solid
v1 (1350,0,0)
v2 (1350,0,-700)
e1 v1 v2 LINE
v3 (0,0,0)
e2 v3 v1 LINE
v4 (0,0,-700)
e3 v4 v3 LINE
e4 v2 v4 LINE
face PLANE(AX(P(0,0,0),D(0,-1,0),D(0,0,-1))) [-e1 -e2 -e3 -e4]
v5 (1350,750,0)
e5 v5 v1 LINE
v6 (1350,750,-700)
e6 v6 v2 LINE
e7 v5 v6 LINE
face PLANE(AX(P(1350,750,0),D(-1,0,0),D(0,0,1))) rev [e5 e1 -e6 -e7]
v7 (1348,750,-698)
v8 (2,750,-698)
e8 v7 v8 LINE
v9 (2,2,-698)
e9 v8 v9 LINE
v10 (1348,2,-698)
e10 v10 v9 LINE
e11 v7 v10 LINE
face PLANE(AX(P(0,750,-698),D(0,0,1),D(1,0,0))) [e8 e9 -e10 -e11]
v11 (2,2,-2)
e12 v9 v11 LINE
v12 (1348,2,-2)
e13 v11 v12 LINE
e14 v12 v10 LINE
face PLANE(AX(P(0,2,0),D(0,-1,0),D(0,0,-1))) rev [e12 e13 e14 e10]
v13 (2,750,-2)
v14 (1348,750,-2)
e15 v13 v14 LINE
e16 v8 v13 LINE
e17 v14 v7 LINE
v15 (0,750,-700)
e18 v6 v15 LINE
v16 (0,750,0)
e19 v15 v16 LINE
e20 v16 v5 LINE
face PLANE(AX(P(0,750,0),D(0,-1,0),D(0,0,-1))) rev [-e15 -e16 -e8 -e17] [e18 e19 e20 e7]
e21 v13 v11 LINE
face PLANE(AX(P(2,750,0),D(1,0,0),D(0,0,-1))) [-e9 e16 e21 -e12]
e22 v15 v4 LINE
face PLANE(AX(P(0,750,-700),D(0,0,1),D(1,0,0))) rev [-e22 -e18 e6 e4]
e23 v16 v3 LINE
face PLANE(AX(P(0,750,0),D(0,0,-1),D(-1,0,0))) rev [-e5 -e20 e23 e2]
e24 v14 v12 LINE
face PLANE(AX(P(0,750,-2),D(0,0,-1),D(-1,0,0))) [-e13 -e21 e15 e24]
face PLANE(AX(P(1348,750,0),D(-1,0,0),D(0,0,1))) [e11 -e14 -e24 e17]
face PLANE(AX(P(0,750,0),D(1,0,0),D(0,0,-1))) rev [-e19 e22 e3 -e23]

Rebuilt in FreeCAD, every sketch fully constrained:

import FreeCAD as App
import Part
import Sketcher

V = App.Vector
Q = App.Units.Quantity


def faces_at(feature, points):
    """Names of the faces that lie closest to the given points."""
    faces = feature.Shape.Faces
    near = lambda p: min(range(len(faces)), key=lambda i: faces[i].distToShape(Part.Vertex(*p))[0])
    return sorted({f"Face{near(p) + 1}" for p in points})

doc = App.newDocument("Part")
body = doc.addObject("PartDesign::Body", "Body")

# Sketch on XZ plane
sketch1 = body.newObject("Sketcher::SketchObject", "Sketch")
sketch1.AttachmentSupport = (doc.getObject("XZ_Plane"), [""])
sketch1.MapMode = "FlatFace"
sketch1.addGeometry([
    Part.LineSegment(V(0, -700, 0), V(0, 0, 0)),
    Part.LineSegment(V(0, 0, 0), V(1350, 0, 0)),
    Part.LineSegment(V(1350, 0, 0), V(1350, -700, 0)),
    Part.LineSegment(V(1350, -700, 0), V(0, -700, 0)),
], False)
sketch1.addConstraint([
    Sketcher.Constraint("Coincident", 0, 2, 1, 1),
    Sketcher.Constraint("Coincident", 1, 2, 2, 1),
    Sketcher.Constraint("Coincident", 2, 2, 3, 1),
    Sketcher.Constraint("Coincident", 3, 2, 0, 1),
    Sketcher.Constraint("Vertical", 0),
    Sketcher.Constraint("Horizontal", 1),
    Sketcher.Constraint("Vertical", 2),
    Sketcher.Constraint("Horizontal", 3),
    Sketcher.Constraint("Coincident", 0, 2, -1, 1),
    Sketcher.Constraint("DistanceX", 1, 1, 1, 2, Q("1350 mm")),
    Sketcher.Constraint("DistanceY", 0, 1, 0, 2, Q("700 mm")),
])
pad1 = body.newObject("PartDesign::Pad", "Pad")
pad1.Profile = sketch1
pad1.Length = 750
pad1.Reversed = True
doc.recompute()

thickness = body.newObject("PartDesign::Thickness", "Thickness")
thickness.Base = (pad1, faces_at(pad1, [(675, 750, -350)]))
thickness.Value = 2
thickness.Reversed = True
thickness.Join = "Intersection"

doc.recompute()
